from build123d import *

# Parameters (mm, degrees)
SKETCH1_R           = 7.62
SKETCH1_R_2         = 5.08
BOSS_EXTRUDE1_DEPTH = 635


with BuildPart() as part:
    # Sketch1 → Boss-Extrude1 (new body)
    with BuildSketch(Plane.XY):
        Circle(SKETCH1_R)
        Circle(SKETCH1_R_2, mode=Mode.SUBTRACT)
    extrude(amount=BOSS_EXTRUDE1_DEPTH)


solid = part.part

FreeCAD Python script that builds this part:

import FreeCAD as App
import Part
import Sketcher
Q = App.Units.Quantity

doc = App.newDocument("Part")
body = doc.addObject("PartDesign::Body", "Body")

sketch1 = doc.addObject("Sketcher::SketchObject", "Sketch")
body.addObject(sketch1)
sketch1.AttachmentSupport = (doc.XY_Plane, [""])
sketch1.MapMode = "FlatFace"
sketch1.addGeometry([
    Part.Circle(App.Vector(0, 0, 0), App.Vector(0, 0, 1), 7.62),
    Part.Circle(App.Vector(0, 0, 0), App.Vector(0, 0, 1), 5.08),
], False)
sketch1.addConstraint([
    Sketcher.Constraint("Coincident", 0, 3, -1, 1),
    Sketcher.Constraint("Coincident", 1, 3, -1, 1),
    Sketcher.Constraint("Diameter", 0, Q("0.6 in")),
    Sketcher.Constraint("Diameter", 1, Q("0.4 in")),
])
pad1 = doc.addObject("PartDesign::Pad", "Pad")
body.addObject(pad1)
pad1.Profile = sketch1
pad1.Length = Q("25 in")

doc.recompute()
